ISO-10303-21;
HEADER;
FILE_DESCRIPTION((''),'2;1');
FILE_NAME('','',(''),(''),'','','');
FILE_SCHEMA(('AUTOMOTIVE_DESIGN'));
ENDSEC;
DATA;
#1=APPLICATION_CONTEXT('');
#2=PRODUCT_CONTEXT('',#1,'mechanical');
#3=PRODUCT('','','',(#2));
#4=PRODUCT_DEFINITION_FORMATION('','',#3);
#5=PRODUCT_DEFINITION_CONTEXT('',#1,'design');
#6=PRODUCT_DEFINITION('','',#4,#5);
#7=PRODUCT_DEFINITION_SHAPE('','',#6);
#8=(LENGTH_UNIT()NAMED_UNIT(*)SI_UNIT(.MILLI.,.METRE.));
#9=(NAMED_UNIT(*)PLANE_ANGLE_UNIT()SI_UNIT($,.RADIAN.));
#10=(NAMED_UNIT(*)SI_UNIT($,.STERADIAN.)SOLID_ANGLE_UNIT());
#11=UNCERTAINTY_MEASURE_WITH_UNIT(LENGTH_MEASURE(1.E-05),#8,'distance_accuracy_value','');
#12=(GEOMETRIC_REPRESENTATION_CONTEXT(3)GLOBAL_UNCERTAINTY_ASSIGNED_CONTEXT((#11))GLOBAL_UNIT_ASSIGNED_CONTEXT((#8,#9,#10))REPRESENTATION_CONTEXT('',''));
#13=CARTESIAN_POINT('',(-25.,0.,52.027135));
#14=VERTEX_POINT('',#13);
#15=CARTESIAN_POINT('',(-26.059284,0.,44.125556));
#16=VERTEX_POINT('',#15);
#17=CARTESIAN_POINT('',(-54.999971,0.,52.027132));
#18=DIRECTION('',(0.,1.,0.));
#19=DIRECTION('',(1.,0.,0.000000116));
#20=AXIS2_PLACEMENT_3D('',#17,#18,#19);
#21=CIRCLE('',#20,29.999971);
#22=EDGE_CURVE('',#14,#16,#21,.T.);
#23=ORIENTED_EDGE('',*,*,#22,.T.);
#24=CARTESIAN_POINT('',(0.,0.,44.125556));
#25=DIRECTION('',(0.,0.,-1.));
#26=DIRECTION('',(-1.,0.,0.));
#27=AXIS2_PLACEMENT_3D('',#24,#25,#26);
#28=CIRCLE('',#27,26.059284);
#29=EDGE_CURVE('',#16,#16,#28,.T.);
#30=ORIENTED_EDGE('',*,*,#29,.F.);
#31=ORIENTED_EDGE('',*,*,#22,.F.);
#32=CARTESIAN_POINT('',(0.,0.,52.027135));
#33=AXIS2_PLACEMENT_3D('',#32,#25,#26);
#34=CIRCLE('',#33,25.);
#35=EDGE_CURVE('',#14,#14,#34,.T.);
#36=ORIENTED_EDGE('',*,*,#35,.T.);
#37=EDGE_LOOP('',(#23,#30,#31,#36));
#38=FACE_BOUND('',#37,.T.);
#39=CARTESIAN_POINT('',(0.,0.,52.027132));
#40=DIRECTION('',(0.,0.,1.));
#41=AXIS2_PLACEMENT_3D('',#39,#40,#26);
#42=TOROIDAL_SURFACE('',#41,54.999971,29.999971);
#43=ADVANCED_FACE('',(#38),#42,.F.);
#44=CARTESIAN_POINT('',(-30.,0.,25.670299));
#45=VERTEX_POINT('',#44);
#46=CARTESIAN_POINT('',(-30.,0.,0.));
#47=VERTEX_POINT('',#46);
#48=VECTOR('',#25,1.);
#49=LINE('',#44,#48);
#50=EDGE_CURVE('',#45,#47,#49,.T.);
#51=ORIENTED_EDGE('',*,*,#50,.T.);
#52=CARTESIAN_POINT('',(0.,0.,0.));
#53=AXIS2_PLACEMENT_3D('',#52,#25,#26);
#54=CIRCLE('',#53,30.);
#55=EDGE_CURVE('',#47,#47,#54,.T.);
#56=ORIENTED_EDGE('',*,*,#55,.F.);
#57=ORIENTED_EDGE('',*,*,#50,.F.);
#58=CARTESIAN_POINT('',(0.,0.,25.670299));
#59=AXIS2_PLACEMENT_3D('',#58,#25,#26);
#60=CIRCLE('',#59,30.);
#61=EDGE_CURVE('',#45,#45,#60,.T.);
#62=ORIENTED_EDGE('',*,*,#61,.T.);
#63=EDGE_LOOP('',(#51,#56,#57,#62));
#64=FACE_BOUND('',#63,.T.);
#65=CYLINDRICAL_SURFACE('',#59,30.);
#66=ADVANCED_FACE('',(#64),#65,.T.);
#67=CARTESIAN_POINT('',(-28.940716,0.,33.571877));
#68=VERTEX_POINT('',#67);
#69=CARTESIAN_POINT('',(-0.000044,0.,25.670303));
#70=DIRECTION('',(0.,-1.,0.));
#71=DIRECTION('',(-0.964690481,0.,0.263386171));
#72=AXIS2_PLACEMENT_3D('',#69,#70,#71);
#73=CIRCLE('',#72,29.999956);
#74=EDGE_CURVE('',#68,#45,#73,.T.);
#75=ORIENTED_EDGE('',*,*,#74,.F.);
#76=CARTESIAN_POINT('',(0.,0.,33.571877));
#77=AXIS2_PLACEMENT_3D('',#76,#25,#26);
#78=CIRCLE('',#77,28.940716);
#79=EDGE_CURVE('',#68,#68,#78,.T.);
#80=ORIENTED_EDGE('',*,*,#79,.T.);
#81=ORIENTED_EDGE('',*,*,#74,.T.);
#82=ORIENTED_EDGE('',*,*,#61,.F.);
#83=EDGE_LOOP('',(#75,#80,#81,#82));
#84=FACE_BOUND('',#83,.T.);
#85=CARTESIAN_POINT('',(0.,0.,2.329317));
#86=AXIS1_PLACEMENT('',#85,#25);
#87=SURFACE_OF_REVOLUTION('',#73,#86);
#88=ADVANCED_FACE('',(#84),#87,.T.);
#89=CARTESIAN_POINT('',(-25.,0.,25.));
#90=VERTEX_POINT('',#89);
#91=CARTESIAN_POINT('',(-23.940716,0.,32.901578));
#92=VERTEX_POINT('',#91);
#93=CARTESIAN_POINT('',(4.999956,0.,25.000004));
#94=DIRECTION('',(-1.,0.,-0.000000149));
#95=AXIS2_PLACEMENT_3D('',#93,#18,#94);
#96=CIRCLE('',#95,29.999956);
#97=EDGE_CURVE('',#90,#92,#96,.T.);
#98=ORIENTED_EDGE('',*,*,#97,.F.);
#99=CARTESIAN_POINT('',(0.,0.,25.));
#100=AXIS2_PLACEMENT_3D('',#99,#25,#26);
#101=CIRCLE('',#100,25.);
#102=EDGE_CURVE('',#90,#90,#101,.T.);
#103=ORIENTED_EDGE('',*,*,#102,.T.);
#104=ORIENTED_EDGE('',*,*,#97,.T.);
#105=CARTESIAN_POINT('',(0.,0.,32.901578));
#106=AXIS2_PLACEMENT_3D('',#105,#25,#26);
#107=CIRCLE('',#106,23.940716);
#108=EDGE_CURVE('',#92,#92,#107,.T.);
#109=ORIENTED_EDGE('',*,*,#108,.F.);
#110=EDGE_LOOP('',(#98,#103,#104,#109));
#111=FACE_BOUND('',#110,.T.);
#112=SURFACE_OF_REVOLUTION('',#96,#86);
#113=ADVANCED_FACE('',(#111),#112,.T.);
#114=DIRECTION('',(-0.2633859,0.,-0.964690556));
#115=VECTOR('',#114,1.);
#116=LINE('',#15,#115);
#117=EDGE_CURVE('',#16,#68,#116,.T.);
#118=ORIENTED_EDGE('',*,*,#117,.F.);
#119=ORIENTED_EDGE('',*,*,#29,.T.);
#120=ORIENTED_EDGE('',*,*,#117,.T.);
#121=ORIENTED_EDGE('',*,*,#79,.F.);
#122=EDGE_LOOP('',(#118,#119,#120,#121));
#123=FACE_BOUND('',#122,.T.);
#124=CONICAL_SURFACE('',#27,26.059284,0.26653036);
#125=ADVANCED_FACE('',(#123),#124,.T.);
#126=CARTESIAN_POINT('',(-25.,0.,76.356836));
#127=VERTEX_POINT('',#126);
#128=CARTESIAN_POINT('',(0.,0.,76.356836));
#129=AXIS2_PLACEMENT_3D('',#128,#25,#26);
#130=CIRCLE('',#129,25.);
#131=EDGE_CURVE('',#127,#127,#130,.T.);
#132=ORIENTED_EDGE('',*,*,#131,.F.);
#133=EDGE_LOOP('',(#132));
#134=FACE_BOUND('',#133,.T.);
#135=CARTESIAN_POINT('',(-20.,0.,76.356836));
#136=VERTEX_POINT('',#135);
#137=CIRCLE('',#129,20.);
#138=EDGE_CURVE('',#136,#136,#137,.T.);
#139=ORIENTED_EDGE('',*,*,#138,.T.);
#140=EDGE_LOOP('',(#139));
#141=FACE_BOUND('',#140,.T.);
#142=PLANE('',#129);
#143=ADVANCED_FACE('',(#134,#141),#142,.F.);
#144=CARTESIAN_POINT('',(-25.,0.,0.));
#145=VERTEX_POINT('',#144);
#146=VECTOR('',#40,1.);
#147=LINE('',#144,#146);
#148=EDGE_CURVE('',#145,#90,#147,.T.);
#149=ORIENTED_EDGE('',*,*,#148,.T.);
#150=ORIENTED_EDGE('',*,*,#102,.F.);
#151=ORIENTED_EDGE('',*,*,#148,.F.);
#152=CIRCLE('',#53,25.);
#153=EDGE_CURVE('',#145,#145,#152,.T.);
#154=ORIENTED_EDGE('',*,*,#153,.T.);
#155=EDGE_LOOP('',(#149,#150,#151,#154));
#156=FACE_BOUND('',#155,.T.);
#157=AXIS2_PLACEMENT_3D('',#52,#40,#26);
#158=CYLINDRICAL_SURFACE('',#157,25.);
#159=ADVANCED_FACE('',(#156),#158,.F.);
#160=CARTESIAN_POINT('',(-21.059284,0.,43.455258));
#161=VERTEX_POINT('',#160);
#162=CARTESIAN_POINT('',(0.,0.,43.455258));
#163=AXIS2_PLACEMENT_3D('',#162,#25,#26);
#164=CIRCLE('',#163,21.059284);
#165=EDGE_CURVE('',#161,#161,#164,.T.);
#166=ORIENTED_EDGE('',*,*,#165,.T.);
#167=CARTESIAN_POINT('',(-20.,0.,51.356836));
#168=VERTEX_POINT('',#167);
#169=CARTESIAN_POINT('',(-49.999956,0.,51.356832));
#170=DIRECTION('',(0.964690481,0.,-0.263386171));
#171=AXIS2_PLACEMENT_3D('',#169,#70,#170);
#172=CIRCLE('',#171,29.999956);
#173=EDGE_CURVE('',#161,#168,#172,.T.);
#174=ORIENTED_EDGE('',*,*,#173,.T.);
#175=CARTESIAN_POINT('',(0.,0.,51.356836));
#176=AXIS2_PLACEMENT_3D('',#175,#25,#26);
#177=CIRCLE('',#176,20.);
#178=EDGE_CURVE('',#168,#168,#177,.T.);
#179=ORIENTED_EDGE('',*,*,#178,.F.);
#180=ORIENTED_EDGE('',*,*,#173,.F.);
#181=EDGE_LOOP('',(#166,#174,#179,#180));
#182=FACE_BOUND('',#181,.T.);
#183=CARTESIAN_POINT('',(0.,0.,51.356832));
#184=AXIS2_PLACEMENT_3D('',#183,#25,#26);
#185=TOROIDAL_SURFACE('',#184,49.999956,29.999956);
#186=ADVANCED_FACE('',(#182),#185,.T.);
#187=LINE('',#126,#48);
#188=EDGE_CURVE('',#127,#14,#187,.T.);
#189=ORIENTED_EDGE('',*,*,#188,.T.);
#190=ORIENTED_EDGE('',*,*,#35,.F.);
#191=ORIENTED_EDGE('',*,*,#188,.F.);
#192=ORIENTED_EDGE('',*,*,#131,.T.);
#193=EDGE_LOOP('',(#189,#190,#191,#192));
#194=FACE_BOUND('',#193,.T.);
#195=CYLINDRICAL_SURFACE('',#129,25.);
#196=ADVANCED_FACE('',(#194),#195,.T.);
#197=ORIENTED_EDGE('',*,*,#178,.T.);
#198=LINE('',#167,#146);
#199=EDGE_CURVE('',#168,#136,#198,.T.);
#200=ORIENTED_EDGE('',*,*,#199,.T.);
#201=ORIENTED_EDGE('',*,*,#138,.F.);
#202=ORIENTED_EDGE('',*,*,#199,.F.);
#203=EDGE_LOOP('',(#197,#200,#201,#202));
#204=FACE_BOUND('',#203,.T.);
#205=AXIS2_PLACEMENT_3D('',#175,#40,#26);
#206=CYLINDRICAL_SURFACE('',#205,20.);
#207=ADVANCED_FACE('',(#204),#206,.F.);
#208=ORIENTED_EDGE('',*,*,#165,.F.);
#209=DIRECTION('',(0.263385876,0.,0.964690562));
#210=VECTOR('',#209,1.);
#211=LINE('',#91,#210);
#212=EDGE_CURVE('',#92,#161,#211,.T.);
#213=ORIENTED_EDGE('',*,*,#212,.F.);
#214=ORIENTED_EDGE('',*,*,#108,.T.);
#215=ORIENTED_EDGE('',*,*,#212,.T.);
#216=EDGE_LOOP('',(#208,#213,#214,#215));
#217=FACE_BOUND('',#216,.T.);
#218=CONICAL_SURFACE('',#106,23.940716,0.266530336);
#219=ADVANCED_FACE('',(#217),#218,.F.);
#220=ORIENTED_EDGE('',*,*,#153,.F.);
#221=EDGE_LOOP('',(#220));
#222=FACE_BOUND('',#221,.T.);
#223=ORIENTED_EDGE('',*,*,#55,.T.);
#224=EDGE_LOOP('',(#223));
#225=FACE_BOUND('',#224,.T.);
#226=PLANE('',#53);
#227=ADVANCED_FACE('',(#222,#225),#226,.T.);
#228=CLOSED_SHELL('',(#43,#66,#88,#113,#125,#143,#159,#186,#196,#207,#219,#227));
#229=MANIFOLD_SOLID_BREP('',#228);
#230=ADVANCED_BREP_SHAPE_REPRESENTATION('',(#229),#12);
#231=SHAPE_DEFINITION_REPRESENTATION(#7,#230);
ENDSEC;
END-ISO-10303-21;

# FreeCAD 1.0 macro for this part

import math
import FreeCAD as App
import Part
import Sketcher
Q = App.Units.Quantity

doc = App.newDocument("Part")
body = doc.addObject("PartDesign::Body", "Body")

sketch1 = doc.addObject("Sketcher::SketchObject", "Sketch")
body.addObject(sketch1)
sketch1.AttachmentSupport = (doc.XZ_Plane, [""])
sketch1.MapMode = "FlatFace"
sketch1.addGeometry(Part.LineSegment(App.Vector(-30, 0, 0), App.Vector(-25, 0, 0)), False)
sketch1.addGeometry(Part.LineSegment(App.Vector(-25, 0, 0), App.Vector(-25, 25, 0)), False)
sketch1.addGeometry(Part.ArcOfCircle(Part.Circle(App.Vector(5, 25, 0), App.Vector(0, 0, 1), 30), math.radians(164.73), math.radians(180)), False)
sketch1.addGeometry(Part.LineSegment(App.Vector(-24, 33, 0), App.Vector(-21, 43, 0)), False)
sketch1.addGeometry(Part.ArcOfCircle(Part.Circle(App.Vector(-50, 51, 0), App.Vector(0, 0, 1), 30), math.radians(-15.27), math.radians(0)), False)
sketch1.addGeometry(Part.LineSegment(App.Vector(-20, 51, 0), App.Vector(-20, 76, 0)), False)
sketch1.addGeometry(Part.LineSegment(App.Vector(-20, 76, 0), App.Vector(-25, 76, 0)), False)
sketch1.addGeometry(Part.LineSegment(App.Vector(-25, 76, 0), App.Vector(-25, 52, 0)), False)
sketch1.addGeometry(Part.ArcOfCircle(Part.Circle(App.Vector(-55, 52, 0), App.Vector(0, 0, 1), 30), math.radians(-15.27), math.radians(0)), False)
sketch1.addGeometry(Part.LineSegment(App.Vector(-26, 44, 0), App.Vector(-29, 34, 0)), False)
sketch1.addGeometry(Part.ArcOfCircle(Part.Circle(App.Vector(0, 26, 0), App.Vector(0, 0, 1), 30), math.radians(164.73), math.radians(180)), False)
sketch1.addGeometry(Part.LineSegment(App.Vector(-30, 26, 0), App.Vector(-30, 0, 0)), False)
sketch1.addConstraint(Sketcher.Constraint("Coincident", 0, 2, 1, 1))
sketch1.addConstraint(Sketcher.Constraint("Tangent", 1, 2, 2, 2))
sketch1.addConstraint(Sketcher.Constraint("Tangent", 2, 1, 3, 1))
sketch1.addConstraint(Sketcher.Constraint("Tangent", 3, 2, 4, 1))
sketch1.addConstraint(Sketcher.Constraint("Tangent", 4, 2, 5, 1))
sketch1.addConstraint(Sketcher.Constraint("Coincident", 5, 2, 6, 1))
sketch1.addConstraint(Sketcher.Constraint("Coincident", 6, 2, 7, 1))
sketch1.addConstraint(Sketcher.Constraint("Tangent", 7, 2, 8, 2))
sketch1.addConstraint(Sketcher.Constraint("Tangent", 8, 1, 9, 1))
sketch1.addConstraint(Sketcher.Constraint("Tangent", 9, 2, 10, 1))
sketch1.addConstraint(Sketcher.Constraint("Tangent", 10, 2, 11, 1))
sketch1.addConstraint(Sketcher.Constraint("Coincident", 11, 2, 0, 1))
sketch1.addConstraint(Sketcher.Constraint("Horizontal", 0))
sketch1.addConstraint(Sketcher.Constraint("Vertical", 1))
sketch1.addConstraint(Sketcher.Constraint("Vertical", 5))
sketch1.addConstraint(Sketcher.Constraint("Horizontal", 6))
sketch1.addConstraint(Sketcher.Constraint("Vertical", 7))
sketch1.addConstraint(Sketcher.Constraint("Vertical", 11))
sketch1.addConstraint(Sketcher.Constraint("Equal", 2, 4))
sketch1.addConstraint(Sketcher.Constraint("Equal", 4, 10))
sketch1.addConstraint(Sketcher.Constraint("PointOnObject", 0, 2, -1))
sketch1.addConstraint(Sketcher.Constraint("Parallel", 3, 9))
sketch1.addConstraint(Sketcher.Constraint("Vertical", 1, 2, 6, 2))
sketch1.addConstraint(Sketcher.Constraint("Equal", 0, 6))
sketch1.addConstraint(Sketcher.Constraint("Equal", 1, 5))
sketch1.addConstraint(Sketcher.Constraint("Equal", 3, 9))
sketch1.addConstraint(Sketcher.Constraint("DistanceX", 0, 1, 0, 2, Q("5 mm")))
sketch1.addConstraint(Sketcher.Constraint("DistanceY", 1, 1, 1, 2, Q("25 mm")))
sketch1.addConstraint(Sketcher.Constraint("DistanceX", 0, 2, -1, 1, Q("25 mm")))
sketch1.addConstraint(Sketcher.Constraint("Radius", 8, Q("29.999971 mm")))
sketch1.addConstraint(Sketcher.Constraint("DistanceY", 7, 2, 7, 1, Q("24.329701 mm")))
sketch1.addConstraint(Sketcher.Constraint("DistanceY", -1, 1, 4, 3, Q("51.356832 mm")))
revolution = doc.addObject("PartDesign::Revolution", "Revolution")
body.addObject(revolution)
revolution.Profile = sketch1
revolution.ReferenceAxis = (sketch1, ["V_Axis"])
revolution.Angle = 360

doc.recompute()
